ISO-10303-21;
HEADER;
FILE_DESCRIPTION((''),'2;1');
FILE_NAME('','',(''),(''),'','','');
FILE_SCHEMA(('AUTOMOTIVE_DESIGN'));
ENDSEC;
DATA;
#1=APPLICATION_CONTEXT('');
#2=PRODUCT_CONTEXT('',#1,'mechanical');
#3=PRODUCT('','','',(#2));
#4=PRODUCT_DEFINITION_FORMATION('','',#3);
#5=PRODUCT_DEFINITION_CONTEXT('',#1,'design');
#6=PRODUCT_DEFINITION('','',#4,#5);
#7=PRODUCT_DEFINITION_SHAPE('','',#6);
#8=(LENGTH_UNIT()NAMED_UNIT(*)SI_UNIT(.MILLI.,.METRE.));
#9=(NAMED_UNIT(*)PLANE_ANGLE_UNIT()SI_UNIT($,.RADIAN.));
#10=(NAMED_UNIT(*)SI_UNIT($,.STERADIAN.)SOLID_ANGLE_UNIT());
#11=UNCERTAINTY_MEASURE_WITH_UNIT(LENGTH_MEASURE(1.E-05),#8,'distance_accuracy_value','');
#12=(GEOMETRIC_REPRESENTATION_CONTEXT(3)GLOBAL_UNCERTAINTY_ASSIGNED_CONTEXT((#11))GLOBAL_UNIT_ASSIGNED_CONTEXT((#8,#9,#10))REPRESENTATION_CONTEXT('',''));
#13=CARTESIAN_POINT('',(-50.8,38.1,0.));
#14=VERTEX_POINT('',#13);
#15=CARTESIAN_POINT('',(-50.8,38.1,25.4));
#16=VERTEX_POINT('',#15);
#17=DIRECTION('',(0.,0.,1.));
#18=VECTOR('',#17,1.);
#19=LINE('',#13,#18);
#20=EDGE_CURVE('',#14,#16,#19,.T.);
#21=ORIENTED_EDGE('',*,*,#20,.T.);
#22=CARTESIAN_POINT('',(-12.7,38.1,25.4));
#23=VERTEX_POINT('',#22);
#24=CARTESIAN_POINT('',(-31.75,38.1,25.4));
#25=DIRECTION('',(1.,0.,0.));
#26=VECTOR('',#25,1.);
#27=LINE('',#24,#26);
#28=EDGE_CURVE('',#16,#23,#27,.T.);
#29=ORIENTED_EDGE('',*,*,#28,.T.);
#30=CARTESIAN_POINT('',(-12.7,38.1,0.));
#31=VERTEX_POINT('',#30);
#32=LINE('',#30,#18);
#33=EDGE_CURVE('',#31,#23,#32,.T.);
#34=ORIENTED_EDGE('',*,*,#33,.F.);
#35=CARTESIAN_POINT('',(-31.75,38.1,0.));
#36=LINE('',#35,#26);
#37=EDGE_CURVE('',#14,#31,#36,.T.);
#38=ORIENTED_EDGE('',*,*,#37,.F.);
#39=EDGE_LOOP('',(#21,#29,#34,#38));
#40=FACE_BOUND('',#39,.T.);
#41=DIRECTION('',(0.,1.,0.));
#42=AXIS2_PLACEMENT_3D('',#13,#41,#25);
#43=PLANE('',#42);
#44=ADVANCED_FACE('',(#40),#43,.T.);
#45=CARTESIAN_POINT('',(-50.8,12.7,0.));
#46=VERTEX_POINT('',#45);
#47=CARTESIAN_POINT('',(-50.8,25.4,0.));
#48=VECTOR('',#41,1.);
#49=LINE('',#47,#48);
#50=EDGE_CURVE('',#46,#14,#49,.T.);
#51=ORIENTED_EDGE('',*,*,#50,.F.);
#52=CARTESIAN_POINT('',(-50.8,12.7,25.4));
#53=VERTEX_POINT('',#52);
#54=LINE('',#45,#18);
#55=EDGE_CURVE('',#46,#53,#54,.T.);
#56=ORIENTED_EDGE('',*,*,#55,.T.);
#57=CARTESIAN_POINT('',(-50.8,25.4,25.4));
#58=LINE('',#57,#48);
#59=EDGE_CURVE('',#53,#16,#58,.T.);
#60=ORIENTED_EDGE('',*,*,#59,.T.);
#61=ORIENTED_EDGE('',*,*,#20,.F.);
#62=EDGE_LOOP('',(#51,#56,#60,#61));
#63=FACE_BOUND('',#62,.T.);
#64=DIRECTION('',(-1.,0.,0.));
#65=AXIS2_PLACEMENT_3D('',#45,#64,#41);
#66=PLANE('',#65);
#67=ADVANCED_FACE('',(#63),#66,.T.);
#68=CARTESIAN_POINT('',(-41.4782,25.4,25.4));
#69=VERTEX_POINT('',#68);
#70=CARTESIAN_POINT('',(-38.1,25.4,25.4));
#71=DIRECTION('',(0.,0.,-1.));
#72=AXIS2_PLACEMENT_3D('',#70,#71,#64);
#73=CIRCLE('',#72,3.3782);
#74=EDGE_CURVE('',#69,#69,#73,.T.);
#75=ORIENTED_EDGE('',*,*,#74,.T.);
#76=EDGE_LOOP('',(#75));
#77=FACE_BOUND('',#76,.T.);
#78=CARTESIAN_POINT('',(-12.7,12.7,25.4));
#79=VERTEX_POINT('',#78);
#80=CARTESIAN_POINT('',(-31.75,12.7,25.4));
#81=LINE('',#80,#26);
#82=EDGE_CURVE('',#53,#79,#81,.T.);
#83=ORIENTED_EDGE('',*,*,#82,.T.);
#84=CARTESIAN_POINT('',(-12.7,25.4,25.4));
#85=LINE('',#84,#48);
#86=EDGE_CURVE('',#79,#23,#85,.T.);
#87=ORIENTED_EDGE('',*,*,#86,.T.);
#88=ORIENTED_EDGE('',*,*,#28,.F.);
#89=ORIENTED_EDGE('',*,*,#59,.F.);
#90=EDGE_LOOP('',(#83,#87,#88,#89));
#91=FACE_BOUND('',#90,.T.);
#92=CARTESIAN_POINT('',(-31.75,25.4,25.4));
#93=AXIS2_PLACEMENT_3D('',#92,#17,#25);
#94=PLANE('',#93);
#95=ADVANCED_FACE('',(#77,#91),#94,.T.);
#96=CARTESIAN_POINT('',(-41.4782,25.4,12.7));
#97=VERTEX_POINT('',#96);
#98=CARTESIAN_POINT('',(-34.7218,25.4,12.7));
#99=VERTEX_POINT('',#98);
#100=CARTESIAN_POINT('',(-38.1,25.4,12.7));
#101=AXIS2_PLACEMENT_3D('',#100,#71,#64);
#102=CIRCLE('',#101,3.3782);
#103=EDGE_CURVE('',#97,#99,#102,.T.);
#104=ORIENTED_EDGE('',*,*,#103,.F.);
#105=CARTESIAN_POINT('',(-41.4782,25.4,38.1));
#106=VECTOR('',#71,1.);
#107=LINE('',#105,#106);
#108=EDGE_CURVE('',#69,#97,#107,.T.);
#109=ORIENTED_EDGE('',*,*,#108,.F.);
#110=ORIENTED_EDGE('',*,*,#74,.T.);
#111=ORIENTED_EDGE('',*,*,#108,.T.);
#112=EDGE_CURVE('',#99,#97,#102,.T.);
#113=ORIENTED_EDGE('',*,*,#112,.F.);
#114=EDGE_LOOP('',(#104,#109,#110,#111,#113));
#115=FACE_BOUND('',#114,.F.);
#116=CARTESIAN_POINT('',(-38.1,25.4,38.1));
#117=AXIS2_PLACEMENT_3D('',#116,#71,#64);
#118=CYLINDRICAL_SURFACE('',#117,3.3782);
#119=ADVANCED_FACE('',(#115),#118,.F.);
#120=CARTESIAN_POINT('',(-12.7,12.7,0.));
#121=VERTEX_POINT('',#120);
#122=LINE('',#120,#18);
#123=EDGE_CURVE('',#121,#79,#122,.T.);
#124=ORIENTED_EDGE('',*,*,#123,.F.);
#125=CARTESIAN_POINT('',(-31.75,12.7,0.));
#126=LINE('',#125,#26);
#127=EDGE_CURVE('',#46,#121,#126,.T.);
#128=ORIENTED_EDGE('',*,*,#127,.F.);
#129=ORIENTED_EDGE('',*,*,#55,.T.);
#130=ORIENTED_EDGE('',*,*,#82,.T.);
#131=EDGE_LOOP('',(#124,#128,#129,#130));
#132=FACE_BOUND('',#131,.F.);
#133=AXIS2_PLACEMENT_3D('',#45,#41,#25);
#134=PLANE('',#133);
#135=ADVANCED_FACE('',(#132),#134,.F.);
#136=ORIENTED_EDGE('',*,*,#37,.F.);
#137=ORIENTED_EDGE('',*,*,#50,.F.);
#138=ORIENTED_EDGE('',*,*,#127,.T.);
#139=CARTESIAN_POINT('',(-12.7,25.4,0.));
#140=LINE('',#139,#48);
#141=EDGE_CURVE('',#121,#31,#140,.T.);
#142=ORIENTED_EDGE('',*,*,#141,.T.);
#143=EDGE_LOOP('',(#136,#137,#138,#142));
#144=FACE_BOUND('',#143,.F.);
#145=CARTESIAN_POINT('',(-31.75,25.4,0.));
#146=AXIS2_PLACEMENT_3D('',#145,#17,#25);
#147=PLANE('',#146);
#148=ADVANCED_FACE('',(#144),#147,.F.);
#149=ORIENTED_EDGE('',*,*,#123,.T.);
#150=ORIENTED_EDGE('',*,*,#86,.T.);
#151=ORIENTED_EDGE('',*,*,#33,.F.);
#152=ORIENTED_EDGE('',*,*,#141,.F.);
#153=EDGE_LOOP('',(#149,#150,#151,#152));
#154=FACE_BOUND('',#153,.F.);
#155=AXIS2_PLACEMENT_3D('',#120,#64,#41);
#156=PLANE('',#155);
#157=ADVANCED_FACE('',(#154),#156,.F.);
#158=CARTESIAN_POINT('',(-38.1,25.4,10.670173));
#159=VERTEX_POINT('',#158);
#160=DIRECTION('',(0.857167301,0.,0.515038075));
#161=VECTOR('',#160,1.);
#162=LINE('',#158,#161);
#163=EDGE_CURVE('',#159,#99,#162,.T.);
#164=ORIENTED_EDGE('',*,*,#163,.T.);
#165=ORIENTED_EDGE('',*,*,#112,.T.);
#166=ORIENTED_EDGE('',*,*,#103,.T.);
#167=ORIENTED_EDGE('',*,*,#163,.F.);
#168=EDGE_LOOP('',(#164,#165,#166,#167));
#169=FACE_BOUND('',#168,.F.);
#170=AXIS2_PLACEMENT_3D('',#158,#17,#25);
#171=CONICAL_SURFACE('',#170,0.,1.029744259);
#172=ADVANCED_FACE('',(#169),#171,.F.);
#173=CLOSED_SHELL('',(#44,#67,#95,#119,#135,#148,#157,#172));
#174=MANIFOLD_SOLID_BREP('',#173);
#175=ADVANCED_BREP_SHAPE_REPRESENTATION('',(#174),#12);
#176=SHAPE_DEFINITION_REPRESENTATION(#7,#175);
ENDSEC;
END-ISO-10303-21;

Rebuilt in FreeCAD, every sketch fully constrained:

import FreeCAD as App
import Part
import Sketcher

V = App.Vector
Q = App.Units.Quantity

doc = App.newDocument("Part")
body = doc.addObject("PartDesign::Body", "Body")

sketch1 = doc.addObject("Sketcher::SketchObject", "Sketch")
body.addObject(sketch1)
sketch1.AttachmentSupport = (doc.XY_Plane, [""])
sketch1.MapMode = "FlatFace"
sketch1.addGeometry([
    Part.LineSegment(V(-50.8, 38.1, 0), V(-50.8, 12.7, 0)),
    Part.LineSegment(V(-50.8, 12.7, 0), V(-12.7, 12.7, 0)),
    Part.LineSegment(V(-12.7, 12.7, 0), V(-12.7, 38.1, 0)),
    Part.LineSegment(V(-12.7, 38.1, 0), V(-50.8, 38.1, 0)),
], False)
sketch1.addConstraint([
    Sketcher.Constraint("Coincident", 0, 2, 1, 1),
    Sketcher.Constraint("Coincident", 1, 2, 2, 1),
    Sketcher.Constraint("Coincident", 2, 2, 3, 1),
    Sketcher.Constraint("Coincident", 3, 2, 0, 1),
    Sketcher.Constraint("Vertical", 0),
    Sketcher.Constraint("Horizontal", 1),
    Sketcher.Constraint("Vertical", 2),
    Sketcher.Constraint("Horizontal", 3),
    Sketcher.Constraint("DistanceY", 0, 2, 0, 1, Q("1 in")),
    Sketcher.Constraint("DistanceX", 1, 1, 1, 2, Q("1.5 in")),
    Sketcher.Constraint("DistanceX", 0, 2, -1, 1, Q("2 in")),
    Sketcher.Constraint("DistanceY", -1, 1, 0, 2, Q("0.5 in")),
])
pad1 = doc.addObject("PartDesign::Pad", "Pad")
body.addObject(pad1)
pad1.Profile = sketch1
pad1.Length = Q("1 in")

sketch2 = doc.addObject("Sketcher::SketchObject", "Sketch001")
body.addObject(sketch2)
sketch2.AttachmentSupport = (doc.XY_Plane, [""])
sketch2.MapMode = "FlatFace"
sketch2.AttachmentOffset = App.Placement(V(0, 0, 1 * 25.4), App.Rotation())
sketch2.addGeometry(Part.Circle(V(-38.1, 25.4, 0), V(0, 0, 1), 3.3782), False)
sketch2.addConstraint([
    Sketcher.Constraint("Diameter", 0, Q("0.266 in")),
    Sketcher.Constraint("DistanceY", -1, 1, 0, 3, Q("1 in")),
    Sketcher.Constraint("DistanceX", 0, 3, -1, 1, Q("1.5 in")),
])
doc.recompute()
hole = doc.addObject("PartDesign::Hole", "Hole")
body.addObject(hole)
hole.Profile = sketch2
hole.ThreadType = "None"
hole.Diameter = Q("0.266 in")
hole.DepthType = "Dimension"
hole.Depth = Q("0.5 in")
hole.DrillPoint = "Angled"
hole.DrillPointAngle = 118

doc.recompute()
